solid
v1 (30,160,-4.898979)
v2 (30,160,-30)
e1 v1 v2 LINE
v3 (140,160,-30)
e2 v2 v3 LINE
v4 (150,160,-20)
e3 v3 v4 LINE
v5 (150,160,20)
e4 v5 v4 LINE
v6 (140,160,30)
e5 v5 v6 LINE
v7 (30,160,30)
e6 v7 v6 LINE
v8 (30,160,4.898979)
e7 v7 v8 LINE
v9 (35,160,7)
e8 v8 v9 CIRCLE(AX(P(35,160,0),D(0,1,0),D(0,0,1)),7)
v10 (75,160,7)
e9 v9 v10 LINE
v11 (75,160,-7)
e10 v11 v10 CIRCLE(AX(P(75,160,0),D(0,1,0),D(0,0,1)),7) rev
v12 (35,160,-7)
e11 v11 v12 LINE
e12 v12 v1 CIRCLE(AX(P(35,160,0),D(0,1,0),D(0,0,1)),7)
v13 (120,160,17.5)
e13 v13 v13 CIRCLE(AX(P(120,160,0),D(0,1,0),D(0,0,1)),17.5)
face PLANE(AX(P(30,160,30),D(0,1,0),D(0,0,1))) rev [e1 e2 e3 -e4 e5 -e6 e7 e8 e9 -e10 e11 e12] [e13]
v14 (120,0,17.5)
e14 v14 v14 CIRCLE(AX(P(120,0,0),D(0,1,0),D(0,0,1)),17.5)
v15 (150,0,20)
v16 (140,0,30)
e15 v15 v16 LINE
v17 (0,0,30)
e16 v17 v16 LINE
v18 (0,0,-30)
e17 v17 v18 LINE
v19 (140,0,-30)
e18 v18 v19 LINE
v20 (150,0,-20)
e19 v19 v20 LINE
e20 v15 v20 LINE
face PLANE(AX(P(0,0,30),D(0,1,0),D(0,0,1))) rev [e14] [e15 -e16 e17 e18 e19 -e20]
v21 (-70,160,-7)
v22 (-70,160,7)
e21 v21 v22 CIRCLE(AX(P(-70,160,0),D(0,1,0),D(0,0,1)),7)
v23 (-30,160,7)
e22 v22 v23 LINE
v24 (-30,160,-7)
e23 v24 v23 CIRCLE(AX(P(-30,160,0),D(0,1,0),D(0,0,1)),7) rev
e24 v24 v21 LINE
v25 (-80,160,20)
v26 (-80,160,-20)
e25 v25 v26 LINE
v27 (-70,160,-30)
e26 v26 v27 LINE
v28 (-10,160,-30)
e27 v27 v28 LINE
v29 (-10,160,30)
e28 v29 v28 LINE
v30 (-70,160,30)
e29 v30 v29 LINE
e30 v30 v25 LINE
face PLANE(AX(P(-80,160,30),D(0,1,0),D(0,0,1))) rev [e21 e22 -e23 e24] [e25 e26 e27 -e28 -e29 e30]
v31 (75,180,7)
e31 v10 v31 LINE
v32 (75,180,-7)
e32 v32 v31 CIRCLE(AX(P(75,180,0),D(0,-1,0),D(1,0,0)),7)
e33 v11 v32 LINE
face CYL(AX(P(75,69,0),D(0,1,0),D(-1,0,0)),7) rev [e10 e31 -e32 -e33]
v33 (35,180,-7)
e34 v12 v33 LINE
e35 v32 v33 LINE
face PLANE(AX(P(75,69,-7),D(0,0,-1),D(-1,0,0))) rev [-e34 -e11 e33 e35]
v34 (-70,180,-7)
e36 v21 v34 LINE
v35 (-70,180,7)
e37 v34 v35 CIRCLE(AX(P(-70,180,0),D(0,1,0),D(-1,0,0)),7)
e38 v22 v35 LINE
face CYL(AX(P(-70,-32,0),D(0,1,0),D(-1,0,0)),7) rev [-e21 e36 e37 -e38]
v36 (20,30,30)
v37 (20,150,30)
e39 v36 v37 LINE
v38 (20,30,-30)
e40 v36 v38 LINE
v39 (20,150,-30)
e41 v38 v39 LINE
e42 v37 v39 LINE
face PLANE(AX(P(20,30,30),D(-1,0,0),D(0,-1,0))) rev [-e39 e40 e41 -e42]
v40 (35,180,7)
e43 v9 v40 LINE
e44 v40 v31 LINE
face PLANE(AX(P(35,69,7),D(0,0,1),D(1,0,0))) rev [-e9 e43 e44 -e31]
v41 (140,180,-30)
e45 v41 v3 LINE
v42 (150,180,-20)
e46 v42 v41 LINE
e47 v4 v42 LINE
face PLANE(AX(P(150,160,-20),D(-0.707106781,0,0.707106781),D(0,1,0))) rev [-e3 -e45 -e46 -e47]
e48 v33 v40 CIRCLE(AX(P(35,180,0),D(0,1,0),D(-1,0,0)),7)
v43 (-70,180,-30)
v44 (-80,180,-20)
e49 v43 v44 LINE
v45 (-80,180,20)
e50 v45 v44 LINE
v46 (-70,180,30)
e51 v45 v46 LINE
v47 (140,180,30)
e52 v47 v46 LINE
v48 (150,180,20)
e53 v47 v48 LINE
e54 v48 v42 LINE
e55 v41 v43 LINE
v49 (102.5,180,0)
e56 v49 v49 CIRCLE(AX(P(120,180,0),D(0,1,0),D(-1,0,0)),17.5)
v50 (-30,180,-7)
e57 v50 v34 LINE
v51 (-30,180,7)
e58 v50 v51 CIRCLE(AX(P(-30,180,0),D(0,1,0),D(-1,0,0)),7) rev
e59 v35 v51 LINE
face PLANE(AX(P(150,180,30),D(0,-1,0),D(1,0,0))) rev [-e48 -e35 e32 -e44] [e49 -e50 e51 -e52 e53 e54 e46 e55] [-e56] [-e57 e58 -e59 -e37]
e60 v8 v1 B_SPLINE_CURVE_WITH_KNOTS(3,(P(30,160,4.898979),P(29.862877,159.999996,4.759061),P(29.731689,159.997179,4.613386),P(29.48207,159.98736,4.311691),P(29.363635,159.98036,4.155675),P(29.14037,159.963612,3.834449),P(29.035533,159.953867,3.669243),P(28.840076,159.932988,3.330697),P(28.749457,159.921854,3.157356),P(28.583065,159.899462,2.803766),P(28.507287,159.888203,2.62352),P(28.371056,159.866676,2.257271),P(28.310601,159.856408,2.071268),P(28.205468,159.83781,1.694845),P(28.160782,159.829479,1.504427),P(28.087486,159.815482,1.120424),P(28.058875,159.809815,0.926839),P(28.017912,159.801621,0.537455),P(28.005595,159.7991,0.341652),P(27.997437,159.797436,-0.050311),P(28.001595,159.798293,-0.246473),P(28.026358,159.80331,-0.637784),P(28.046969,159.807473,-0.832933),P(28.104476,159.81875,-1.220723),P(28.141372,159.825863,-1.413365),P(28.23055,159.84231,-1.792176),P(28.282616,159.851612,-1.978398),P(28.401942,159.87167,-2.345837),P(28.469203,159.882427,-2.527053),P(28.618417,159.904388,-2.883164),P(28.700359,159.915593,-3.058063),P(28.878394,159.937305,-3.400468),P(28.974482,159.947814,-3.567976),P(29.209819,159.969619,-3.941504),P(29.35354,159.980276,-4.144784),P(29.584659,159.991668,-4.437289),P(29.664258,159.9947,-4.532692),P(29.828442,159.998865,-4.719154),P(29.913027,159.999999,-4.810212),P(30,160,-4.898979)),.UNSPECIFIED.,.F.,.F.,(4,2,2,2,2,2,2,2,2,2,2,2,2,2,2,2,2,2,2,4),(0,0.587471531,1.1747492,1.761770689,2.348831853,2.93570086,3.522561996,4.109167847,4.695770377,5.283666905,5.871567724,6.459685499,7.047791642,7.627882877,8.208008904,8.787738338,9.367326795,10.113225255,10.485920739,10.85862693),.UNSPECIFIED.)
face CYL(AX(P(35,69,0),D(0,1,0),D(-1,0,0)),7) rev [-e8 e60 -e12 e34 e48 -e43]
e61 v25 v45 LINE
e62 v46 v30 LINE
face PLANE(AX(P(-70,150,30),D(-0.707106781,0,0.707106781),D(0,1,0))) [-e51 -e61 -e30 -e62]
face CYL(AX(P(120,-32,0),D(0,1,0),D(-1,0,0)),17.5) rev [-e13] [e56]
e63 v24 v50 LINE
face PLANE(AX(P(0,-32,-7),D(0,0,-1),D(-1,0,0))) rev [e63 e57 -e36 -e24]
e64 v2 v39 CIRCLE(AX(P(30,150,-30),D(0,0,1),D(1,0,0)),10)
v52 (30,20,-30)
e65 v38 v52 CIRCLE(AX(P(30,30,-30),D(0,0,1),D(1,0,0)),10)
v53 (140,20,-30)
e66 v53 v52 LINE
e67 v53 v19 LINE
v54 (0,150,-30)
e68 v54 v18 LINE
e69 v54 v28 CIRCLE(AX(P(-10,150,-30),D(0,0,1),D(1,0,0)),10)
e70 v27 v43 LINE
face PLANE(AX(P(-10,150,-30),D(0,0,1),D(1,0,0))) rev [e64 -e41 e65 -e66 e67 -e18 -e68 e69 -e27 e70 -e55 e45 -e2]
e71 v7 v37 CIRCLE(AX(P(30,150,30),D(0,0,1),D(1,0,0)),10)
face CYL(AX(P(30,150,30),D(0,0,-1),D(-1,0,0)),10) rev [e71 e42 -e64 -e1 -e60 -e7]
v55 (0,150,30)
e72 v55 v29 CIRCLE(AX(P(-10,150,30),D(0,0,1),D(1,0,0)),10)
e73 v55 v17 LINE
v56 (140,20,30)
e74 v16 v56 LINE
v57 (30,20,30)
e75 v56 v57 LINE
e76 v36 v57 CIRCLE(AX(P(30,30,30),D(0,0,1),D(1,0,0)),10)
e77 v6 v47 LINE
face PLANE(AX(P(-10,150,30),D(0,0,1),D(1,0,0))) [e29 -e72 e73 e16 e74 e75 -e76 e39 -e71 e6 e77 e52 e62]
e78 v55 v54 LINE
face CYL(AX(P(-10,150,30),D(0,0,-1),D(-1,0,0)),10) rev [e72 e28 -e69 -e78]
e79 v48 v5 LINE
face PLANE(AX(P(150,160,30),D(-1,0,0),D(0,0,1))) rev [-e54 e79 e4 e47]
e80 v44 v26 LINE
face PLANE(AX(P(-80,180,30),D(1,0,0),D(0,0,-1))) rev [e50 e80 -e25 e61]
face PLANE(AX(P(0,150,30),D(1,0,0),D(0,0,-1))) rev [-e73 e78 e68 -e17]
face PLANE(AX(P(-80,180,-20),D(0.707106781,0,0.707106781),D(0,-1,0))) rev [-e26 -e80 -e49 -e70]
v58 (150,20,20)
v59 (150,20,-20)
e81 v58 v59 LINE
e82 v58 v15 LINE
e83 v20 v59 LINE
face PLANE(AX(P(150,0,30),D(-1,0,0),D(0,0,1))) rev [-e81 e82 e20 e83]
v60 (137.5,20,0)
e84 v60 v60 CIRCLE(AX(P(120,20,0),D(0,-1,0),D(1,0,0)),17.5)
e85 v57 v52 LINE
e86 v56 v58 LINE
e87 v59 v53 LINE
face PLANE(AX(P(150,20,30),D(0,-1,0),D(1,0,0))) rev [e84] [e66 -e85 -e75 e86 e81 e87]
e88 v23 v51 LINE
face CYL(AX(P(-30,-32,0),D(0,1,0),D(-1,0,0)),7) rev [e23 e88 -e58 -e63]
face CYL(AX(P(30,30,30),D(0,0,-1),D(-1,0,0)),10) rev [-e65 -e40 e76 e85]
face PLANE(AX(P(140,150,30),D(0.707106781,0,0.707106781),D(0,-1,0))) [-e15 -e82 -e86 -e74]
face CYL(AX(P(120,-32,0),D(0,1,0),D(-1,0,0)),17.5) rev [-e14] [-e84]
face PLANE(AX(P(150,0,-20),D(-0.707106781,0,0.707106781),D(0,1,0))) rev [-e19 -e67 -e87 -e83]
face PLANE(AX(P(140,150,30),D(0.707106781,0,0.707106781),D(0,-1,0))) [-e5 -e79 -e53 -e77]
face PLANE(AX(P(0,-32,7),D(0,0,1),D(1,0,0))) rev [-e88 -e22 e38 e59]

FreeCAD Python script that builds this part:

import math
import FreeCAD as App
import Part
import Sketcher


def edges_at(feature, points):
    """Names of the edges that pass closest to the given points."""
    edges = feature.Shape.Edges
    near = lambda p: min(range(len(edges)), key=lambda i: edges[i].distToShape(Part.Vertex(*p))[0])
    return sorted({f"Edge{near(p) + 1}" for p in points})

doc = App.newDocument("Part")
body = doc.addObject("PartDesign::Body", "Body")

# Sketch on XY plane
sketch1 = doc.addObject("Sketcher::SketchObject", "Sketch")
body.addObject(sketch1)
sketch1.AttachmentSupport = (doc.XY_Plane, [""])
sketch1.MapMode = "FlatFace"
sketch1.addGeometry(Part.LineSegment(App.Vector(0, 150, 0), App.Vector(0, 0, 0)), False)
sketch1.addGeometry(Part.LineSegment(App.Vector(0, 0, 0), App.Vector(150, 0, 0)), False)
sketch1.addGeometry(Part.LineSegment(App.Vector(150, 0, 0), App.Vector(150, 20, 0)), False)
sketch1.addGeometry(Part.LineSegment(App.Vector(150, 20, 0), App.Vector(30, 20, 0)), False)
sketch1.addGeometry(Part.ArcOfCircle(Part.Circle(App.Vector(30, 30, 0), App.Vector(0, 0, 1), 10), math.radians(180), math.radians(270)), False)
sketch1.addGeometry(Part.LineSegment(App.Vector(20, 30, 0), App.Vector(20, 150, 0)), False)
sketch1.addGeometry(Part.ArcOfCircle(Part.Circle(App.Vector(30, 150, 0), App.Vector(0, 0, 1), 10), math.radians(90), math.radians(180)), False)
sketch1.addGeometry(Part.LineSegment(App.Vector(30, 160, 0), App.Vector(150, 160, 0)), False)
sketch1.addGeometry(Part.LineSegment(App.Vector(150, 160, 0), App.Vector(150, 180, 0)), False)
sketch1.addGeometry(Part.LineSegment(App.Vector(150, 180, 0), App.Vector(-80, 180, 0)), False)
sketch1.addGeometry(Part.LineSegment(App.Vector(-80, 180, 0), App.Vector(-80, 160, 0)), False)
sketch1.addGeometry(Part.LineSegment(App.Vector(-80, 160, 0), App.Vector(-10, 160, 0)), False)
sketch1.addGeometry(Part.ArcOfCircle(Part.Circle(App.Vector(-10, 150, 0), App.Vector(0, 0, 1), 10), math.radians(0), math.radians(90)), False)
sketch1.addConstraint(Sketcher.Constraint("Coincident", 0, 2, 1, 1))
sketch1.addConstraint(Sketcher.Constraint("Coincident", 1, 2, 2, 1))
sketch1.addConstraint(Sketcher.Constraint("Coincident", 2, 2, 3, 1))
sketch1.addConstraint(Sketcher.Constraint("Tangent", 3, 2, 4, 2))
sketch1.addConstraint(Sketcher.Constraint("Tangent", 4, 1, 5, 1))
sketch1.addConstraint(Sketcher.Constraint("Tangent", 5, 2, 6, 2))
sketch1.addConstraint(Sketcher.Constraint("Tangent", 6, 1, 7, 1))
sketch1.addConstraint(Sketcher.Constraint("Coincident", 7, 2, 8, 1))
sketch1.addConstraint(Sketcher.Constraint("Coincident", 8, 2, 9, 1))
sketch1.addConstraint(Sketcher.Constraint("Coincident", 9, 2, 10, 1))
sketch1.addConstraint(Sketcher.Constraint("Coincident", 10, 2, 11, 1))
sketch1.addConstraint(Sketcher.Constraint("Tangent", 11, 2, 12, 2))
sketch1.addConstraint(Sketcher.Constraint("Tangent", 12, 1, 0, 1))
sketch1.addConstraint(Sketcher.Constraint("Vertical", 0))
sketch1.addConstraint(Sketcher.Constraint("Horizontal", 1))
sketch1.addConstraint(Sketcher.Constraint("Vertical", 2))
sketch1.addConstraint(Sketcher.Constraint("Horizontal", 3))
sketch1.addConstraint(Sketcher.Constraint("Vertical", 5))
sketch1.addConstraint(Sketcher.Constraint("Horizontal", 7))
sketch1.addConstraint(Sketcher.Constraint("Vertical", 8))
sketch1.addConstraint(Sketcher.Constraint("Horizontal", 9))
sketch1.addConstraint(Sketcher.Constraint("Vertical", 10))
sketch1.addConstraint(Sketcher.Constraint("Horizontal", 11))
sketch1.addConstraint(Sketcher.Constraint("Coincident", 0, 2, -1, 1))
sketch1.addConstraint(Sketcher.Constraint("Equal", 4, 6))
sketch1.addConstraint(Sketcher.Constraint("Equal", 6, 12))
sketch1.addConstraint(Sketcher.Constraint("Horizontal", 6, 3, 12, 3))
sketch1.addConstraint(Sketcher.Constraint("Vertical", 2, 2, 7, 2))
sketch1.addConstraint(Sketcher.Constraint("Equal", 1, 0))
sketch1.addConstraint(Sketcher.Constraint("Equal", 7, 5))
sketch1.addConstraint(Sketcher.Constraint("Equal", 2, 8))
sketch1.addConstraint(Sketcher.Constraint("Radius", 4, 10.0))
sketch1.addConstraint(Sketcher.Constraint("DistanceX", 1, 1, 1, 2, 150.0))
sketch1.addConstraint(Sketcher.Constraint("DistanceX", 3, 2, 3, 1, 120.0))
sketch1.addConstraint(Sketcher.Constraint("DistanceX", 9, 2, 9, 1, 230.0))
pad1 = doc.addObject("PartDesign::Pad", "Pad")
body.addObject(pad1)
pad1.Profile = sketch1
pad1.Length = 60
pad1.Midplane = True
doc.recompute()

chamfer = doc.addObject("PartDesign::Chamfer", "Chamfer")
body.addObject(chamfer)
chamfer.Base = (pad1, edges_at(pad1, [(150, 170, 30)]))
chamfer.Size = 10
doc.recompute()

chamfer2 = doc.addObject("PartDesign::Chamfer", "Chamfer001")
body.addObject(chamfer2)
chamfer2.Base = (chamfer, edges_at(chamfer, [
    (-80, 170, 30),
    (150, 10, -30),
    (150, 170, -30),
    (-80, 170, -30),
    (150, 10, 30),
]))
chamfer2.Size = 10

# Sketch on XZ plane
sketch2 = doc.addObject("Sketcher::SketchObject", "Sketch001")
body.addObject(sketch2)
sketch2.AttachmentSupport = (doc.XZ_Plane, [""])
sketch2.MapMode = "FlatFace"
sketch2.AttachmentOffset = App.Placement(App.Vector(0, 0, -180), App.Rotation())
sketch2.addGeometry(Part.ArcOfCircle(Part.Circle(App.Vector(-30, 0, 0), App.Vector(0, 0, 1), 7), math.radians(-90), math.radians(90)), False)
sketch2.addGeometry(Part.LineSegment(App.Vector(-30, -7, 0), App.Vector(-70, -7, 0)), False)
sketch2.addGeometry(Part.ArcOfCircle(Part.Circle(App.Vector(-70, 0, 0), App.Vector(0, 0, 1), 7), math.radians(90), math.radians(270)), False)
sketch2.addGeometry(Part.LineSegment(App.Vector(-70, 7, 0), App.Vector(-30, 7, 0)), False)
sketch2.addGeometry(Part.Circle(App.Vector(120, 0, 0), App.Vector(0, 0, 1), 18), False)
sketch2.addConstraint(Sketcher.Constraint("Tangent", 0, 1, 1, 1))
sketch2.addConstraint(Sketcher.Constraint("Tangent", 1, 2, 2, 2))
sketch2.addConstraint(Sketcher.Constraint("Tangent", 2, 1, 3, 1))
sketch2.addConstraint(Sketcher.Constraint("Tangent", 3, 2, 0, 2))
sketch2.addConstraint(Sketcher.Constraint("Horizontal", 1))
sketch2.addConstraint(Sketcher.Constraint("Horizontal", 3))
sketch2.addConstraint(Sketcher.Constraint("PointOnObject", 0, 3, -1))
sketch2.addConstraint(Sketcher.Constraint("PointOnObject", 4, 3, -1))
sketch2.addConstraint(Sketcher.Constraint("Diameter", 4, 35.0))
sketch2.addConstraint(Sketcher.Constraint("Radius", 0, 7.0))
sketch2.addConstraint(Sketcher.Constraint("DistanceX", 1, 2, 1, 1, 40.0))
sketch2.addConstraint(Sketcher.Constraint("DistanceX", 0, 3, -1, 1, 30.0))
sketch2.addConstraint(Sketcher.Constraint("DistanceX", -1, 1, 4, 3, 120.0))
pocket1 = doc.addObject("PartDesign::Pocket", "Pocket")
body.addObject(pocket1)
pocket1.Profile = sketch2
pocket1.Length = 212
pocket1.Reversed = True

# Sketch on XZ plane
sketch3 = doc.addObject("Sketcher::SketchObject", "Sketch002")
body.addObject(sketch3)
sketch3.AttachmentSupport = (doc.XZ_Plane, [""])
sketch3.MapMode = "FlatFace"
sketch3.AttachmentOffset = App.Placement(App.Vector(0, 0, -180), App.Rotation())
sketch3.addGeometry(Part.LineSegment(App.Vector(75, -7, 0), App.Vector(35, -7, 0)), False)
sketch3.addGeometry(Part.ArcOfCircle(Part.Circle(App.Vector(35, 0, 0), App.Vector(0, 0, 1), 7), math.radians(90), math.radians(270)), False)
sketch3.addGeometry(Part.LineSegment(App.Vector(35, 7, 0), App.Vector(75, 7, 0)), False)
sketch3.addGeometry(Part.ArcOfCircle(Part.Circle(App.Vector(75, 0, 0), App.Vector(0, 0, 1), 7), math.radians(-90), math.radians(90)), False)
sketch3.addConstraint(Sketcher.Constraint("Tangent", 0, 2, 1, 2))
sketch3.addConstraint(Sketcher.Constraint("Tangent", 1, 1, 2, 1))
sketch3.addConstraint(Sketcher.Constraint("Tangent", 2, 2, 3, 2))
sketch3.addConstraint(Sketcher.Constraint("Tangent", 3, 1, 0, 1))
sketch3.addConstraint(Sketcher.Constraint("Horizontal", 0))
sketch3.addConstraint(Sketcher.Constraint("Horizontal", 2))
sketch3.addConstraint(Sketcher.Constraint("PointOnObject", 1, 3, -1))
sketch3.addConstraint(Sketcher.Constraint("Radius", 1, 7.0))
sketch3.addConstraint(Sketcher.Constraint("DistanceX", 0, 2, 0, 1, 40.0))
sketch3.addConstraint(Sketcher.Constraint("DistanceX", -1, 1, 1, 3, 35.0))
pocket2 = doc.addObject("PartDesign::Pocket", "Pocket001")
body.addObject(pocket2)
pocket2.Profile = sketch3
pocket2.Length = 111
pocket2.Reversed = True

doc.recompute()
